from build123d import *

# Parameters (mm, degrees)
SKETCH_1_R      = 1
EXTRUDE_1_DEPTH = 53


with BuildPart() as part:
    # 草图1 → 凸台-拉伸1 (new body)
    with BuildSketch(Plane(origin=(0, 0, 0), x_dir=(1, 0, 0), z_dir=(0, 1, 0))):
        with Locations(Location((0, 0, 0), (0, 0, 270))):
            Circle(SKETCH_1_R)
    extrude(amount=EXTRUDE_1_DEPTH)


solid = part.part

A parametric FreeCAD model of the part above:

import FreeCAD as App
import Part
import Sketcher

doc = App.newDocument("Part")
body = doc.addObject("PartDesign::Body", "Body")

sketch1 = doc.addObject("Sketcher::SketchObject", "Sketch")
body.addObject(sketch1)
sketch1.AttachmentSupport = (doc.XZ_Plane, [""])
sketch1.MapMode = "FlatFace"
sketch1.addGeometry(Part.Circle(App.Vector(0, 0, 0), App.Vector(0, 0, 1), 1), False)
sketch1.addConstraint([
    Sketcher.Constraint("Coincident", 0, 3, -1, 1),
    Sketcher.Constraint("Diameter", 0, 2.0),
])
pad1 = doc.addObject("PartDesign::Pad", "Pad")
body.addObject(pad1)
pad1.Profile = sketch1
pad1.Length = 53
pad1.Reversed = True

doc.recompute()
